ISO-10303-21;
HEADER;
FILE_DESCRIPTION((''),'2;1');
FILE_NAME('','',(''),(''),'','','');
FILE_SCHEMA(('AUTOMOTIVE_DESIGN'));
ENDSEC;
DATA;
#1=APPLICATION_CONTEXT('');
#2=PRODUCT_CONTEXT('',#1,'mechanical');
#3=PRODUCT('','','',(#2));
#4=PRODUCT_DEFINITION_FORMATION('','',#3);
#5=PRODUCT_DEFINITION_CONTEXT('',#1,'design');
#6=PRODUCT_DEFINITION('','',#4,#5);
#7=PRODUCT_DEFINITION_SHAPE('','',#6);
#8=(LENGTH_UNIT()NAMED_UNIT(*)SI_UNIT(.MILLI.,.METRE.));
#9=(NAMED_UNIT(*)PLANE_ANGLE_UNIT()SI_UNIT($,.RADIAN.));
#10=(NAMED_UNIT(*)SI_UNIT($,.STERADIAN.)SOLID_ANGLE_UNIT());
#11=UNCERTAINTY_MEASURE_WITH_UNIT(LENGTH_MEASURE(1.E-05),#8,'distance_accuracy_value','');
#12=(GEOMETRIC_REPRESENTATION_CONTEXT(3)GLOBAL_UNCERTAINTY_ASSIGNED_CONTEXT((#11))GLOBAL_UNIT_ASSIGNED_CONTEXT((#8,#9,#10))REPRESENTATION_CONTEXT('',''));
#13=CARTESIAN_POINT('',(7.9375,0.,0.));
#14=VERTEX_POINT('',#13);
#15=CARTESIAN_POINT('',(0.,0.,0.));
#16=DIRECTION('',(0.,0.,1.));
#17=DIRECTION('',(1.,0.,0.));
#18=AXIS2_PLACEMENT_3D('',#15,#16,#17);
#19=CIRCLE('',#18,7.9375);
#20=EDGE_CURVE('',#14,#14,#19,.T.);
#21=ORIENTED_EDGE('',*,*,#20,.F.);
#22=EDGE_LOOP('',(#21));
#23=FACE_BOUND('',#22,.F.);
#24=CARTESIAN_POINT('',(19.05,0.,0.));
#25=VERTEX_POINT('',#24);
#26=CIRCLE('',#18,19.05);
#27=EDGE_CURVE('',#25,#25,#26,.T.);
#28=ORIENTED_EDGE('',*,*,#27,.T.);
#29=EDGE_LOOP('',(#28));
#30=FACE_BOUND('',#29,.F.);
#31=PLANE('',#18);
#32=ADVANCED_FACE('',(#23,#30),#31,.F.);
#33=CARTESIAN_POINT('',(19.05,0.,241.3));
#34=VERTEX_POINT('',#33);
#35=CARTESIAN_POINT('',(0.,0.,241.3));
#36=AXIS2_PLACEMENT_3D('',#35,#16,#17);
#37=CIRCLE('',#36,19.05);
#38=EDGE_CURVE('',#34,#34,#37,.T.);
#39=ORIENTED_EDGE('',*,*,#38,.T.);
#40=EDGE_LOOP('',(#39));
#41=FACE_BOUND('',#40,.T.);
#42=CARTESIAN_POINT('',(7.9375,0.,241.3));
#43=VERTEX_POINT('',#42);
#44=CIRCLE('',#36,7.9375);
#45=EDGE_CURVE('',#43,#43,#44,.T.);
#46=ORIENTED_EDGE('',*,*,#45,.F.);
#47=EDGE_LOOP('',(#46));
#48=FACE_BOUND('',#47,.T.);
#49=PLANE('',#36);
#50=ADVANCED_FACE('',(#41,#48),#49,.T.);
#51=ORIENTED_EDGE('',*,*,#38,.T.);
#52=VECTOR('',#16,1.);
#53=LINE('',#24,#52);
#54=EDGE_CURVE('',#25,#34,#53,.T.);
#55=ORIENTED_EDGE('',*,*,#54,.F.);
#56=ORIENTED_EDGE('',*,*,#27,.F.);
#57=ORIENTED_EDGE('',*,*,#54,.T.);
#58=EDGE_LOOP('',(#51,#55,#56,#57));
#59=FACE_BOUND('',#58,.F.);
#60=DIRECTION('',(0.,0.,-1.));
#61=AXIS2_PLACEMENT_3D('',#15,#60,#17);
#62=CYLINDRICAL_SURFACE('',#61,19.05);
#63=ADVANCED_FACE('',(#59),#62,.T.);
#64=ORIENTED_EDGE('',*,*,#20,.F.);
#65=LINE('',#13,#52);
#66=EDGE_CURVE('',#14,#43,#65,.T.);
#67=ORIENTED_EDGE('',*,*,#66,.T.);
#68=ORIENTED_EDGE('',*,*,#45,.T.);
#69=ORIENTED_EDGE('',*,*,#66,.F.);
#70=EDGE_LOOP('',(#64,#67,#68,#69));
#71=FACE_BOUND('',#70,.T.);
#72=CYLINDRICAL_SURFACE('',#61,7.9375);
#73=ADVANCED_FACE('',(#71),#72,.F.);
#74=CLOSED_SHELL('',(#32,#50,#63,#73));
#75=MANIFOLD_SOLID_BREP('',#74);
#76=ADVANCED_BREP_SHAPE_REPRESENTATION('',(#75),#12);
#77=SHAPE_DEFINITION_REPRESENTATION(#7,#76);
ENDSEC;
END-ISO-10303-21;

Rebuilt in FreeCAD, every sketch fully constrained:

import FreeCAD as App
import Part
import Sketcher
Q = App.Units.Quantity

doc = App.newDocument("Part")
params = doc.addObject("Spreadsheet::Sheet", "Params")
for row, (alias, value) in enumerate([
    ("sketch1_diameter", "1.5 in"),
    ("sketch1_diameter2", "0.625 in"),
    ("pad1_length", "9.5 in"),
], start=1):
    params.set(f"A{row}", alias)
    params.set(f"B{row}", "=" + value)
    params.setAlias(f"B{row}", alias)

body = doc.addObject("PartDesign::Body", "Body")

# Sketch on XY plane
sketch1 = body.newObject("Sketcher::SketchObject", "Sketch")
sketch1.AttachmentSupport = (doc.getObject("XY_Plane"), [""])
sketch1.MapMode = "FlatFace"
sketch1.addGeometry([
    Part.Circle(App.Vector(0, 0, 0), App.Vector(0, 0, 1), 19.05),
    Part.Circle(App.Vector(0, 0, 0), App.Vector(0, 0, 1), 7.9375),
], False)
sketch1.addConstraint([
    Sketcher.Constraint("Coincident", 0, 3, -1, 1),
    Sketcher.Constraint("Coincident", 1, 3, -1, 1),
    Sketcher.Constraint("Diameter", 0, Q("1.5 in")),
    Sketcher.Constraint("Diameter", 1, Q("0.625 in")),
])
sketch1.setExpression("Constraints[2]", "Params.sketch1_diameter")
sketch1.setExpression("Constraints[3]", "Params.sketch1_diameter2")
pad1 = body.newObject("PartDesign::Pad", "Pad")
pad1.Profile = sketch1
pad1.setExpression("Length", "Params.pad1_length")

doc.recompute()
